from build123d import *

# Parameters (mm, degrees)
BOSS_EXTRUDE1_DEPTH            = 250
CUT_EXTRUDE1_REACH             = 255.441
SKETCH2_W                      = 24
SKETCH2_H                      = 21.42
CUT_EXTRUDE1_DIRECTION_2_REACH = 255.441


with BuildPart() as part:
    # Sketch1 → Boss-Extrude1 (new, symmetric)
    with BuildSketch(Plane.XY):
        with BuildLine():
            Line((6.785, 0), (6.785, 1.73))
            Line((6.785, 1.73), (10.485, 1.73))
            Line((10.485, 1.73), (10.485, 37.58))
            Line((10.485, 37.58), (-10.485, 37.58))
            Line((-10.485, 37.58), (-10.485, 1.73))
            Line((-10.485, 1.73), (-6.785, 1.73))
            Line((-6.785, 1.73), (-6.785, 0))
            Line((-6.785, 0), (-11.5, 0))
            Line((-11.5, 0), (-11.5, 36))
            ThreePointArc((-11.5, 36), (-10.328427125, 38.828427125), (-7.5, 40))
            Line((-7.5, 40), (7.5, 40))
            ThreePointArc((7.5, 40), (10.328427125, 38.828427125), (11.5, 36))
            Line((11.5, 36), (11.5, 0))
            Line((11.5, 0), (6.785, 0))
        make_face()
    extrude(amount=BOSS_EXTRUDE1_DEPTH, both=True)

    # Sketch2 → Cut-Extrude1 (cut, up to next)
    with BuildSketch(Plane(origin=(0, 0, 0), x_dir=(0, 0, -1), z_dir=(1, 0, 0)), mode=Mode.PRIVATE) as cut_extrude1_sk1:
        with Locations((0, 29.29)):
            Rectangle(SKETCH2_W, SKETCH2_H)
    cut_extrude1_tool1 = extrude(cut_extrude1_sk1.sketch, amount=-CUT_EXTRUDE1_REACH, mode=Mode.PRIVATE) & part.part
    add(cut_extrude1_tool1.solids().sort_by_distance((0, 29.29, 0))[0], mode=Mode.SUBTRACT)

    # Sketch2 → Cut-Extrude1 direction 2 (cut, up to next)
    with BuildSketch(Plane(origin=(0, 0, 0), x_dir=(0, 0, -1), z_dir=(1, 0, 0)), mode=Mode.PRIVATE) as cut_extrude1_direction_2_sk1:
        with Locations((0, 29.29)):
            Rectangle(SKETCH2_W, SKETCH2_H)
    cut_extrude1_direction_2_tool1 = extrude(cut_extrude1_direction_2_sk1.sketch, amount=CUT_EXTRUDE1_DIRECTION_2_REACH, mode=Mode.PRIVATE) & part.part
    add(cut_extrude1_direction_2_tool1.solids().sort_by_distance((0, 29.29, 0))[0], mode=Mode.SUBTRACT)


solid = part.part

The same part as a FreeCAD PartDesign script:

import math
import FreeCAD as App
import Part
import Sketcher
from FreeCAD import Vector
Q = App.Units.Quantity

doc = App.newDocument("Part")
params = doc.addObject("Spreadsheet::Sheet", "Params")
for row, (alias, value) in enumerate([
    ("sketch1_radius", "4 mm"),
    ("sketch1_width", "15 mm"),
    ("sketch1_height", "36 mm"),
    ("sketch1_width2", "3.7 mm"),
    ("sketch1_width3", "20.97 mm"),
    ("pad1_length", "500 mm"),
    ("sketch2_height", "24 mm"),
    ("sketch2_width", "21.42 mm"),
    ("pocket1_length", "11.5 mm"),
    ("sketch3_height", "24 mm"),
    ("sketch3_width", "21.42 mm"),
    ("pocket2_length", "11.5 mm"),
], start=1):
    params.set(f"A{row}", alias)
    params.set(f"B{row}", "=" + value)
    params.setAlias(f"B{row}", alias)

body = doc.addObject("PartDesign::Body", "Body")

# Sketch on XY plane
sketch1 = body.newObject("Sketcher::SketchObject", "Sketch")
sketch1.AttachmentSupport = (doc.getObject("XY_Plane"), [""])
sketch1.MapMode = "FlatFace"
sketch1.addGeometry([
    Part.LineSegment(Vector(6.8, 1.7, 0), Vector(6.8, 0, 0)),  # 0
    Part.LineSegment(Vector(6.8, 0, 0), Vector(11.5, 0, 0)),  # 1
    Part.LineSegment(Vector(11.5, 0, 0), Vector(11.5, 36, 0)),  # 2
    Part.ArcOfCircle(Part.Circle(Vector(7.5, 36, 0), Vector(0, 0, 1), 4), math.radians(0), math.radians(90)),  # 3
    Part.LineSegment(Vector(7.5, 40, 0), Vector(-7.5, 40, 0)),  # 4
    Part.ArcOfCircle(Part.Circle(Vector(-7.5, 36, 0), Vector(0, 0, 1), 4), math.radians(90), math.radians(180)),  # 5
    Part.LineSegment(Vector(-11.5, 36, 0), Vector(-11.5, 0, 0)),  # 6
    Part.LineSegment(Vector(-11.5, 0, 0), Vector(-6.8, 0, 0)),  # 7
    Part.LineSegment(Vector(-6.8, 0, 0), Vector(-6.8, 1.7, 0)),  # 8
    Part.LineSegment(Vector(-6.8, 1.7, 0), Vector(-10.5, 1.7, 0)),  # 9
    Part.LineSegment(Vector(-10.5, 1.7, 0), Vector(-10.5, 37.6, 0)),  # 10
    Part.LineSegment(Vector(-10.5, 37.6, 0), Vector(10.5, 37.6, 0)),  # 11
    Part.LineSegment(Vector(10.5, 37.6, 0), Vector(10.5, 1.7, 0)),  # 12
    Part.LineSegment(Vector(10.5, 1.7, 0), Vector(6.8, 1.7, 0)),  # 13
], False)
sketch1.addConstraint([
    Sketcher.Constraint("Coincident", 0, 2, 1, 1),
    Sketcher.Constraint("Coincident", 1, 2, 2, 1),
    Sketcher.Constraint("Tangent", 2, 2, 3, 1),
    Sketcher.Constraint("Tangent", 3, 2, 4, 1),
    Sketcher.Constraint("Tangent", 4, 2, 5, 1),
    Sketcher.Constraint("Tangent", 5, 2, 6, 1),
    Sketcher.Constraint("Coincident", 6, 2, 7, 1),
    Sketcher.Constraint("Coincident", 7, 2, 8, 1),
    Sketcher.Constraint("Coincident", 8, 2, 9, 1),
    Sketcher.Constraint("Coincident", 9, 2, 10, 1),
    Sketcher.Constraint("Coincident", 10, 2, 11, 1),
    Sketcher.Constraint("Coincident", 11, 2, 12, 1),
    Sketcher.Constraint("Coincident", 12, 2, 13, 1),
    Sketcher.Constraint("Coincident", 13, 2, 0, 1),
    Sketcher.Constraint("Vertical", 0),
    Sketcher.Constraint("Horizontal", 1),
    Sketcher.Constraint("Vertical", 2),
    Sketcher.Constraint("Horizontal", 4),
    Sketcher.Constraint("Vertical", 6),
    Sketcher.Constraint("Horizontal", 7),
    Sketcher.Constraint("Vertical", 8),
    Sketcher.Constraint("Horizontal", 9),
    Sketcher.Constraint("Vertical", 10),
    Sketcher.Constraint("Horizontal", 11),
    Sketcher.Constraint("Vertical", 12),
    Sketcher.Constraint("Horizontal", 13),
    Sketcher.Constraint("Equal", 3, 5),
    Sketcher.Constraint("Symmetric", 1, 2, 6, 2, -1, 1),
    Sketcher.Constraint("Symmetric", 0, 2, 7, 2, -2),
    Sketcher.Constraint("Symmetric", 9, 2, 12, 2, -2),
    Sketcher.Constraint("Radius", 3, Q("4 mm")),
    Sketcher.Constraint("DistanceX", 4, 2, 4, 1, Q("15 mm")),
    Sketcher.Constraint("DistanceY", 2, 1, 2, 2, Q("36 mm")),
    Sketcher.Constraint("DistanceX", 9, 2, 9, 1, Q("3.7 mm")),
    Sketcher.Constraint("DistanceX", 11, 1, 11, 2, Q("20.97 mm")),
    Sketcher.Constraint("DistanceY", 0, 2, 0, 1, Q("1.73 mm")),
    Sketcher.Constraint("DistanceY", 10, 1, 10, 2, Q("35.85 mm")),
])
sketch1.setExpression("Constraints[30]", "Params.sketch1_radius")
sketch1.setExpression("Constraints[31]", "Params.sketch1_width")
sketch1.setExpression("Constraints[32]", "Params.sketch1_height")
sketch1.setExpression("Constraints[33]", "Params.sketch1_width2")
sketch1.setExpression("Constraints[34]", "Params.sketch1_width3")
pad1 = body.newObject("PartDesign::Pad", "Pad")
pad1.Profile = sketch1
pad1.setExpression("Length", "Params.pad1_length")
pad1.Midplane = True

# Sketch on YZ plane
sketch2 = body.newObject("Sketcher::SketchObject", "Sketch001")
sketch2.AttachmentSupport = (doc.getObject("YZ_Plane"), [""])
sketch2.MapMode = "FlatFace"
sketch2.addGeometry([
    Part.LineSegment(Vector(40, 12, 0), Vector(19, 12, 0)),
    Part.LineSegment(Vector(19, 12, 0), Vector(19, -12, 0)),
    Part.LineSegment(Vector(19, -12, 0), Vector(40, -12, 0)),
    Part.LineSegment(Vector(40, -12, 0), Vector(40, 12, 0)),
], False)
sketch2.addConstraint([
    Sketcher.Constraint("Coincident", 0, 2, 1, 1),
    Sketcher.Constraint("Coincident", 1, 2, 2, 1),
    Sketcher.Constraint("Coincident", 2, 2, 3, 1),
    Sketcher.Constraint("Coincident", 3, 2, 0, 1),
    Sketcher.Constraint("Horizontal", 0),
    Sketcher.Constraint("Vertical", 1),
    Sketcher.Constraint("Horizontal", 2),
    Sketcher.Constraint("Vertical", 3),
    Sketcher.Constraint("DistanceY", 1, 2, 1, 1, Q("24 mm")),
    Sketcher.Constraint("DistanceY", -1, 1, 0, 2, Q("12 mm")),
    Sketcher.Constraint("DistanceX", -1, 1, 2, 2, Q("40 mm")),
    Sketcher.Constraint("DistanceX", 0, 2, 0, 1, Q("21.42 mm")),
])
sketch2.setExpression("Constraints[8]", "Params.sketch2_height")
sketch2.setExpression("Constraints[11]", "Params.sketch2_width")
pocket1 = body.newObject("PartDesign::Pocket", "Pocket")
pocket1.Profile = sketch2
pocket1.setExpression("Length", "Params.pocket1_length")

# Sketch on YZ plane
sketch3 = body.newObject("Sketcher::SketchObject", "Sketch002")
sketch3.AttachmentSupport = (doc.getObject("YZ_Plane"), [""])
sketch3.MapMode = "FlatFace"
sketch3.addGeometry([
    Part.LineSegment(Vector(40, 12, 0), Vector(19, 12, 0)),
    Part.LineSegment(Vector(19, 12, 0), Vector(19, -12, 0)),
    Part.LineSegment(Vector(19, -12, 0), Vector(40, -12, 0)),
    Part.LineSegment(Vector(40, -12, 0), Vector(40, 12, 0)),
], False)
sketch3.addConstraint([
    Sketcher.Constraint("Coincident", 0, 2, 1, 1),
    Sketcher.Constraint("Coincident", 1, 2, 2, 1),
    Sketcher.Constraint("Coincident", 2, 2, 3, 1),
    Sketcher.Constraint("Coincident", 3, 2, 0, 1),
    Sketcher.Constraint("Horizontal", 0),
    Sketcher.Constraint("Vertical", 1),
    Sketcher.Constraint("Horizontal", 2),
    Sketcher.Constraint("Vertical", 3),
    Sketcher.Constraint("DistanceY", 1, 2, 1, 1, Q("24 mm")),
    Sketcher.Constraint("DistanceY", -1, 1, 0, 2, Q("12 mm")),
    Sketcher.Constraint("DistanceX", -1, 1, 2, 2, Q("40 mm")),
    Sketcher.Constraint("DistanceX", 0, 2, 0, 1, Q("21.42 mm")),
])
sketch3.setExpression("Constraints[8]", "Params.sketch3_height")
sketch3.setExpression("Constraints[11]", "Params.sketch3_width")
pocket2 = body.newObject("PartDesign::Pocket", "Pocket001")
pocket2.Profile = sketch3
pocket2.setExpression("Length", "Params.pocket2_length")
pocket2.Reversed = True

doc.recompute()
